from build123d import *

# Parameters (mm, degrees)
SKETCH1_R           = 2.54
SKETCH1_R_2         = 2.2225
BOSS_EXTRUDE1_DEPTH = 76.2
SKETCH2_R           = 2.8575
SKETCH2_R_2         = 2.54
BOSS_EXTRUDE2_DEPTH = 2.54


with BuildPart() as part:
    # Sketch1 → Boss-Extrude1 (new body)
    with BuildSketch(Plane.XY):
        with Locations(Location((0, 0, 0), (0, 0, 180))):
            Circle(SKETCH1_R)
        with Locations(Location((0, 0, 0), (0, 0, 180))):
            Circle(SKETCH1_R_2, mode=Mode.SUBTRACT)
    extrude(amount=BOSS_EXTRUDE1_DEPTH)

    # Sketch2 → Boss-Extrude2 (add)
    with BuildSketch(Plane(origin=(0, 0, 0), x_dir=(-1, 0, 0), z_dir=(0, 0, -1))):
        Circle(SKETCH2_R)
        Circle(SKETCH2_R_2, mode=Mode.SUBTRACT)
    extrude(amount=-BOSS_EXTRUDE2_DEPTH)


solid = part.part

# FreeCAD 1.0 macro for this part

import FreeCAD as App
import Part
import Sketcher

V = App.Vector
Q = App.Units.Quantity

doc = App.newDocument("Part")
params = doc.addObject("Spreadsheet::Sheet", "Params")
for row, (alias, value) in enumerate([
    ("sketch1_diameter", "0.2 in"),
    ("sketch1_diameter2", "0.175 in"),
    ("pad1_length", "3 in"),
    ("sketch2_diameter", "0.2 in"),
    ("sketch2_diameter2", "0.225 in"),
    ("pad2_length", "0.1 in"),
], start=1):
    params.set(f"A{row}", alias)
    params.set(f"B{row}", "=" + value)
    params.setAlias(f"B{row}", alias)

body = doc.addObject("PartDesign::Body", "Body")

# Sketch on XY plane
sketch1 = body.newObject("Sketcher::SketchObject", "Sketch")
sketch1.AttachmentSupport = (doc.getObject("XY_Plane"), [""])
sketch1.MapMode = "FlatFace"
sketch1.addGeometry(Part.Circle(V(0, 0, 0), V(0, 0, 1), 2.54), False)
sketch1.addGeometry(Part.Circle(V(0, 0, 0), V(0, 0, 1), 2.2225), False)
sketch1.addConstraint(Sketcher.Constraint("Coincident", 0, 3, -1, 1))
sketch1.addConstraint(Sketcher.Constraint("Coincident", 1, 3, -1, 1))
sketch1.addConstraint(Sketcher.Constraint("Diameter", 0, Q("0.2 in")))
sketch1.addConstraint(Sketcher.Constraint("Diameter", 1, Q("0.175 in")))
sketch1.setExpression("Constraints[2]", "Params.sketch1_diameter")
sketch1.setExpression("Constraints[3]", "Params.sketch1_diameter2")
pad1 = body.newObject("PartDesign::Pad", "Pad")
pad1.Profile = sketch1
pad1.setExpression("Length", "Params.pad1_length")

# Sketch on XY plane
sketch2 = body.newObject("Sketcher::SketchObject", "Sketch001")
sketch2.AttachmentSupport = (doc.getObject("XY_Plane"), [""])
sketch2.MapMode = "FlatFace"
sketch2.addGeometry(Part.Circle(V(0, 0, 0), V(0, 0, 1), 2.8575), False)
sketch2.addGeometry(Part.Circle(V(0, 0, 0), V(0, 0, 1), 2.54), False)
sketch2.addConstraint(Sketcher.Constraint("Coincident", 0, 3, -1, 1))
sketch2.addConstraint(Sketcher.Constraint("Coincident", 1, 3, -1, 1))
sketch2.addConstraint(Sketcher.Constraint("Diameter", 1, Q("0.2 in")))
sketch2.addConstraint(Sketcher.Constraint("Diameter", 0, Q("0.225 in")))
sketch2.setExpression("Constraints[2]", "Params.sketch2_diameter")
sketch2.setExpression("Constraints[3]", "Params.sketch2_diameter2")
pad2 = body.newObject("PartDesign::Pad", "Pad001")
pad2.Profile = sketch2
pad2.setExpression("Length", "Params.pad2_length")

doc.recompute()
